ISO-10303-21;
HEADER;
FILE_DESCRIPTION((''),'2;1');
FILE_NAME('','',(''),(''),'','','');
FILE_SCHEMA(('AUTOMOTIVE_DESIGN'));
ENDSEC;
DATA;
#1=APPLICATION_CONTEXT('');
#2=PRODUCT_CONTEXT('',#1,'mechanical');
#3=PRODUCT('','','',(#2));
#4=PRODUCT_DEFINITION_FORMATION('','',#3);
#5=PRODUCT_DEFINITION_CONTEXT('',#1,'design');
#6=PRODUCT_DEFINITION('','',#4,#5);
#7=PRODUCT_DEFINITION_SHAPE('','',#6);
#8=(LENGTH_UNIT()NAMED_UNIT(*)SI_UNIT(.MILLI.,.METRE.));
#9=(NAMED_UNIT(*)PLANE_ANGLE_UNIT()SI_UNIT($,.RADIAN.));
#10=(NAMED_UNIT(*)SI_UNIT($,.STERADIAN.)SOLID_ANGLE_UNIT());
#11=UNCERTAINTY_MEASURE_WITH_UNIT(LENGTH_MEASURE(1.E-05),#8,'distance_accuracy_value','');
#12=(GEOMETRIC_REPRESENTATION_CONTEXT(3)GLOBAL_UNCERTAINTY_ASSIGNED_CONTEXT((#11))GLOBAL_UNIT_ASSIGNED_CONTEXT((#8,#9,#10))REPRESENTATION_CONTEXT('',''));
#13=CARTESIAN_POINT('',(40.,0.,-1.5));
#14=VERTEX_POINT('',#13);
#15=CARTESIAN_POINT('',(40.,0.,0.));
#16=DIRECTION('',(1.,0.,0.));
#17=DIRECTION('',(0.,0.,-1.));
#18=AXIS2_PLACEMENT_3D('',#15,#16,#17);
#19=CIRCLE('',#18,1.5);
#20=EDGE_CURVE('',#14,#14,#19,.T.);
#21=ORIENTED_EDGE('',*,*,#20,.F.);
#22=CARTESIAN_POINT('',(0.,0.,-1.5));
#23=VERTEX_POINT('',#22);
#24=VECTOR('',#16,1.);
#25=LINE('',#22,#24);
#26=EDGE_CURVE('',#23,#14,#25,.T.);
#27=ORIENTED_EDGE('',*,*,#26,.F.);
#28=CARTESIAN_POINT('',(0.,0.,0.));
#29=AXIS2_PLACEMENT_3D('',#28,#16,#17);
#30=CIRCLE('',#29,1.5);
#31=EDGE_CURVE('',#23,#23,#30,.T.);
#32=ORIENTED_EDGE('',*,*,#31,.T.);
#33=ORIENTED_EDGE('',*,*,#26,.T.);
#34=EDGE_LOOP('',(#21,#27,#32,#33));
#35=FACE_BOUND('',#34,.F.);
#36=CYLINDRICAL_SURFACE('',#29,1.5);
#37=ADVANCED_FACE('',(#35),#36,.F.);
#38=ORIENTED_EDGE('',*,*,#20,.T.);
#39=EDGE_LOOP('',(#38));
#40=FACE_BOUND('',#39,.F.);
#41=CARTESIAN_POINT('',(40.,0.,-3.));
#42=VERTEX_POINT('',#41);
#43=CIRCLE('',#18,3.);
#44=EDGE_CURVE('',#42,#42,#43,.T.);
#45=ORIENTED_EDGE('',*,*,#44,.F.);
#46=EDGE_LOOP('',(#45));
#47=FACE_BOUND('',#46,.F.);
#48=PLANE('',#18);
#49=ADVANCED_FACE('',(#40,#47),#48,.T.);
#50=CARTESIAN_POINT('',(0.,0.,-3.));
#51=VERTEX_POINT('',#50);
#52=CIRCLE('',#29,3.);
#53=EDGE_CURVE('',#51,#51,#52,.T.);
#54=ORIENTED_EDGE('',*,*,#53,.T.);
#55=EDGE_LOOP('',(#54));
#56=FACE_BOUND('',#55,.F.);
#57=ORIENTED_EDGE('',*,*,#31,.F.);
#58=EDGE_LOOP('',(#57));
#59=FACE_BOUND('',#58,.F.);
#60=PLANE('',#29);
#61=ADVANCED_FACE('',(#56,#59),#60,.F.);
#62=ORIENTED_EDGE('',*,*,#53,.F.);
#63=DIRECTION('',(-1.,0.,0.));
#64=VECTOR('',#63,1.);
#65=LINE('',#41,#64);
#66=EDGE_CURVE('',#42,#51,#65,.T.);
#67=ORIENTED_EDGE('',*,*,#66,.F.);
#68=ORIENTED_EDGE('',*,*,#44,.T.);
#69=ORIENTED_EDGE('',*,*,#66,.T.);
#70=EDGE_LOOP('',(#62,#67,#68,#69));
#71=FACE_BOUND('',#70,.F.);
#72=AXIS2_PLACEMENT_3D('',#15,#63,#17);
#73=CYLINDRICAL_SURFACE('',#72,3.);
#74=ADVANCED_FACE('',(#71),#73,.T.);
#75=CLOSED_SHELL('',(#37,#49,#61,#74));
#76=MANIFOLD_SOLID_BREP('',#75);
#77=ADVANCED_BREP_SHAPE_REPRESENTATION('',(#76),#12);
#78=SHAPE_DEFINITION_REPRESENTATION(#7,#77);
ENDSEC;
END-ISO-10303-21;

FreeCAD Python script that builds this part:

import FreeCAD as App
import Part
import Sketcher
from FreeCAD import Vector


def add_polygon(sketch, points):
    """Adds a closed chain of lines whose ends are joined by coincident constraints."""
    first, n = sketch.GeometryCount, len(points)
    for a, b in zip(points, points[1:] + points[:1]):
        sketch.addGeometry(Part.LineSegment(App.Vector(*a, 0), App.Vector(*b, 0)), False)
    for i in range(n):
        sketch.addConstraint(Sketcher.Constraint("Coincident", first + i, 2, first + (i + 1) % n, 1))

doc = App.newDocument("Part")
body = doc.addObject("PartDesign::Body", "Body")

sketch1 = body.newObject("Sketcher::SketchObject", "Sketch")
sketch1.AttachmentSupport = (doc.getObject("XZ_Plane"), [""])
sketch1.MapMode = "FlatFace"
add_polygon(sketch1, [(0, 0), (40, 0), (40, -3), (0, -3)])
sketch1.addConstraint([
    Sketcher.Constraint("Horizontal", 0),
    Sketcher.Constraint("Vertical", 1),
    Sketcher.Constraint("Horizontal", 2),
    Sketcher.Constraint("Vertical", 3),
    Sketcher.Constraint("Coincident", 3, 2, -1, 1),
    Sketcher.Constraint("DistanceX", 0, 1, 0, 2, 40.0),
    Sketcher.Constraint("DistanceY", 1, 2, 1, 1, 3.0),
])
revolution = body.newObject("PartDesign::Revolution", "Revolution")
revolution.Profile = sketch1
revolution.ReferenceAxis = (sketch1, ["H_Axis"])
revolution.Angle = 360

sketch2 = body.newObject("Sketcher::SketchObject", "Sketch001")
sketch2.AttachmentSupport = (doc.getObject("XZ_Plane"), [""])
sketch2.MapMode = "FlatFace"
add_polygon(sketch2, [(0, -1.5), (0, 0), (40, 0), (40, -1.5)])
sketch2.addConstraint([
    Sketcher.Constraint("Vertical", 0),
    Sketcher.Constraint("Horizontal", 1),
    Sketcher.Constraint("Vertical", 2),
    Sketcher.Constraint("Horizontal", 3),
    Sketcher.Constraint("Coincident", 0, 2, -1, 1),
    Sketcher.Constraint("DistanceX", 1, 1, 1, 2, 40.0),
    Sketcher.Constraint("DistanceY", 0, 1, 0, 2, 1.5),
])
groove = body.newObject("PartDesign::Groove", "Groove")
groove.Profile = sketch2
groove.ReferenceAxis = (sketch2, ["H_Axis"])
groove.Angle = 360

doc.recompute()
